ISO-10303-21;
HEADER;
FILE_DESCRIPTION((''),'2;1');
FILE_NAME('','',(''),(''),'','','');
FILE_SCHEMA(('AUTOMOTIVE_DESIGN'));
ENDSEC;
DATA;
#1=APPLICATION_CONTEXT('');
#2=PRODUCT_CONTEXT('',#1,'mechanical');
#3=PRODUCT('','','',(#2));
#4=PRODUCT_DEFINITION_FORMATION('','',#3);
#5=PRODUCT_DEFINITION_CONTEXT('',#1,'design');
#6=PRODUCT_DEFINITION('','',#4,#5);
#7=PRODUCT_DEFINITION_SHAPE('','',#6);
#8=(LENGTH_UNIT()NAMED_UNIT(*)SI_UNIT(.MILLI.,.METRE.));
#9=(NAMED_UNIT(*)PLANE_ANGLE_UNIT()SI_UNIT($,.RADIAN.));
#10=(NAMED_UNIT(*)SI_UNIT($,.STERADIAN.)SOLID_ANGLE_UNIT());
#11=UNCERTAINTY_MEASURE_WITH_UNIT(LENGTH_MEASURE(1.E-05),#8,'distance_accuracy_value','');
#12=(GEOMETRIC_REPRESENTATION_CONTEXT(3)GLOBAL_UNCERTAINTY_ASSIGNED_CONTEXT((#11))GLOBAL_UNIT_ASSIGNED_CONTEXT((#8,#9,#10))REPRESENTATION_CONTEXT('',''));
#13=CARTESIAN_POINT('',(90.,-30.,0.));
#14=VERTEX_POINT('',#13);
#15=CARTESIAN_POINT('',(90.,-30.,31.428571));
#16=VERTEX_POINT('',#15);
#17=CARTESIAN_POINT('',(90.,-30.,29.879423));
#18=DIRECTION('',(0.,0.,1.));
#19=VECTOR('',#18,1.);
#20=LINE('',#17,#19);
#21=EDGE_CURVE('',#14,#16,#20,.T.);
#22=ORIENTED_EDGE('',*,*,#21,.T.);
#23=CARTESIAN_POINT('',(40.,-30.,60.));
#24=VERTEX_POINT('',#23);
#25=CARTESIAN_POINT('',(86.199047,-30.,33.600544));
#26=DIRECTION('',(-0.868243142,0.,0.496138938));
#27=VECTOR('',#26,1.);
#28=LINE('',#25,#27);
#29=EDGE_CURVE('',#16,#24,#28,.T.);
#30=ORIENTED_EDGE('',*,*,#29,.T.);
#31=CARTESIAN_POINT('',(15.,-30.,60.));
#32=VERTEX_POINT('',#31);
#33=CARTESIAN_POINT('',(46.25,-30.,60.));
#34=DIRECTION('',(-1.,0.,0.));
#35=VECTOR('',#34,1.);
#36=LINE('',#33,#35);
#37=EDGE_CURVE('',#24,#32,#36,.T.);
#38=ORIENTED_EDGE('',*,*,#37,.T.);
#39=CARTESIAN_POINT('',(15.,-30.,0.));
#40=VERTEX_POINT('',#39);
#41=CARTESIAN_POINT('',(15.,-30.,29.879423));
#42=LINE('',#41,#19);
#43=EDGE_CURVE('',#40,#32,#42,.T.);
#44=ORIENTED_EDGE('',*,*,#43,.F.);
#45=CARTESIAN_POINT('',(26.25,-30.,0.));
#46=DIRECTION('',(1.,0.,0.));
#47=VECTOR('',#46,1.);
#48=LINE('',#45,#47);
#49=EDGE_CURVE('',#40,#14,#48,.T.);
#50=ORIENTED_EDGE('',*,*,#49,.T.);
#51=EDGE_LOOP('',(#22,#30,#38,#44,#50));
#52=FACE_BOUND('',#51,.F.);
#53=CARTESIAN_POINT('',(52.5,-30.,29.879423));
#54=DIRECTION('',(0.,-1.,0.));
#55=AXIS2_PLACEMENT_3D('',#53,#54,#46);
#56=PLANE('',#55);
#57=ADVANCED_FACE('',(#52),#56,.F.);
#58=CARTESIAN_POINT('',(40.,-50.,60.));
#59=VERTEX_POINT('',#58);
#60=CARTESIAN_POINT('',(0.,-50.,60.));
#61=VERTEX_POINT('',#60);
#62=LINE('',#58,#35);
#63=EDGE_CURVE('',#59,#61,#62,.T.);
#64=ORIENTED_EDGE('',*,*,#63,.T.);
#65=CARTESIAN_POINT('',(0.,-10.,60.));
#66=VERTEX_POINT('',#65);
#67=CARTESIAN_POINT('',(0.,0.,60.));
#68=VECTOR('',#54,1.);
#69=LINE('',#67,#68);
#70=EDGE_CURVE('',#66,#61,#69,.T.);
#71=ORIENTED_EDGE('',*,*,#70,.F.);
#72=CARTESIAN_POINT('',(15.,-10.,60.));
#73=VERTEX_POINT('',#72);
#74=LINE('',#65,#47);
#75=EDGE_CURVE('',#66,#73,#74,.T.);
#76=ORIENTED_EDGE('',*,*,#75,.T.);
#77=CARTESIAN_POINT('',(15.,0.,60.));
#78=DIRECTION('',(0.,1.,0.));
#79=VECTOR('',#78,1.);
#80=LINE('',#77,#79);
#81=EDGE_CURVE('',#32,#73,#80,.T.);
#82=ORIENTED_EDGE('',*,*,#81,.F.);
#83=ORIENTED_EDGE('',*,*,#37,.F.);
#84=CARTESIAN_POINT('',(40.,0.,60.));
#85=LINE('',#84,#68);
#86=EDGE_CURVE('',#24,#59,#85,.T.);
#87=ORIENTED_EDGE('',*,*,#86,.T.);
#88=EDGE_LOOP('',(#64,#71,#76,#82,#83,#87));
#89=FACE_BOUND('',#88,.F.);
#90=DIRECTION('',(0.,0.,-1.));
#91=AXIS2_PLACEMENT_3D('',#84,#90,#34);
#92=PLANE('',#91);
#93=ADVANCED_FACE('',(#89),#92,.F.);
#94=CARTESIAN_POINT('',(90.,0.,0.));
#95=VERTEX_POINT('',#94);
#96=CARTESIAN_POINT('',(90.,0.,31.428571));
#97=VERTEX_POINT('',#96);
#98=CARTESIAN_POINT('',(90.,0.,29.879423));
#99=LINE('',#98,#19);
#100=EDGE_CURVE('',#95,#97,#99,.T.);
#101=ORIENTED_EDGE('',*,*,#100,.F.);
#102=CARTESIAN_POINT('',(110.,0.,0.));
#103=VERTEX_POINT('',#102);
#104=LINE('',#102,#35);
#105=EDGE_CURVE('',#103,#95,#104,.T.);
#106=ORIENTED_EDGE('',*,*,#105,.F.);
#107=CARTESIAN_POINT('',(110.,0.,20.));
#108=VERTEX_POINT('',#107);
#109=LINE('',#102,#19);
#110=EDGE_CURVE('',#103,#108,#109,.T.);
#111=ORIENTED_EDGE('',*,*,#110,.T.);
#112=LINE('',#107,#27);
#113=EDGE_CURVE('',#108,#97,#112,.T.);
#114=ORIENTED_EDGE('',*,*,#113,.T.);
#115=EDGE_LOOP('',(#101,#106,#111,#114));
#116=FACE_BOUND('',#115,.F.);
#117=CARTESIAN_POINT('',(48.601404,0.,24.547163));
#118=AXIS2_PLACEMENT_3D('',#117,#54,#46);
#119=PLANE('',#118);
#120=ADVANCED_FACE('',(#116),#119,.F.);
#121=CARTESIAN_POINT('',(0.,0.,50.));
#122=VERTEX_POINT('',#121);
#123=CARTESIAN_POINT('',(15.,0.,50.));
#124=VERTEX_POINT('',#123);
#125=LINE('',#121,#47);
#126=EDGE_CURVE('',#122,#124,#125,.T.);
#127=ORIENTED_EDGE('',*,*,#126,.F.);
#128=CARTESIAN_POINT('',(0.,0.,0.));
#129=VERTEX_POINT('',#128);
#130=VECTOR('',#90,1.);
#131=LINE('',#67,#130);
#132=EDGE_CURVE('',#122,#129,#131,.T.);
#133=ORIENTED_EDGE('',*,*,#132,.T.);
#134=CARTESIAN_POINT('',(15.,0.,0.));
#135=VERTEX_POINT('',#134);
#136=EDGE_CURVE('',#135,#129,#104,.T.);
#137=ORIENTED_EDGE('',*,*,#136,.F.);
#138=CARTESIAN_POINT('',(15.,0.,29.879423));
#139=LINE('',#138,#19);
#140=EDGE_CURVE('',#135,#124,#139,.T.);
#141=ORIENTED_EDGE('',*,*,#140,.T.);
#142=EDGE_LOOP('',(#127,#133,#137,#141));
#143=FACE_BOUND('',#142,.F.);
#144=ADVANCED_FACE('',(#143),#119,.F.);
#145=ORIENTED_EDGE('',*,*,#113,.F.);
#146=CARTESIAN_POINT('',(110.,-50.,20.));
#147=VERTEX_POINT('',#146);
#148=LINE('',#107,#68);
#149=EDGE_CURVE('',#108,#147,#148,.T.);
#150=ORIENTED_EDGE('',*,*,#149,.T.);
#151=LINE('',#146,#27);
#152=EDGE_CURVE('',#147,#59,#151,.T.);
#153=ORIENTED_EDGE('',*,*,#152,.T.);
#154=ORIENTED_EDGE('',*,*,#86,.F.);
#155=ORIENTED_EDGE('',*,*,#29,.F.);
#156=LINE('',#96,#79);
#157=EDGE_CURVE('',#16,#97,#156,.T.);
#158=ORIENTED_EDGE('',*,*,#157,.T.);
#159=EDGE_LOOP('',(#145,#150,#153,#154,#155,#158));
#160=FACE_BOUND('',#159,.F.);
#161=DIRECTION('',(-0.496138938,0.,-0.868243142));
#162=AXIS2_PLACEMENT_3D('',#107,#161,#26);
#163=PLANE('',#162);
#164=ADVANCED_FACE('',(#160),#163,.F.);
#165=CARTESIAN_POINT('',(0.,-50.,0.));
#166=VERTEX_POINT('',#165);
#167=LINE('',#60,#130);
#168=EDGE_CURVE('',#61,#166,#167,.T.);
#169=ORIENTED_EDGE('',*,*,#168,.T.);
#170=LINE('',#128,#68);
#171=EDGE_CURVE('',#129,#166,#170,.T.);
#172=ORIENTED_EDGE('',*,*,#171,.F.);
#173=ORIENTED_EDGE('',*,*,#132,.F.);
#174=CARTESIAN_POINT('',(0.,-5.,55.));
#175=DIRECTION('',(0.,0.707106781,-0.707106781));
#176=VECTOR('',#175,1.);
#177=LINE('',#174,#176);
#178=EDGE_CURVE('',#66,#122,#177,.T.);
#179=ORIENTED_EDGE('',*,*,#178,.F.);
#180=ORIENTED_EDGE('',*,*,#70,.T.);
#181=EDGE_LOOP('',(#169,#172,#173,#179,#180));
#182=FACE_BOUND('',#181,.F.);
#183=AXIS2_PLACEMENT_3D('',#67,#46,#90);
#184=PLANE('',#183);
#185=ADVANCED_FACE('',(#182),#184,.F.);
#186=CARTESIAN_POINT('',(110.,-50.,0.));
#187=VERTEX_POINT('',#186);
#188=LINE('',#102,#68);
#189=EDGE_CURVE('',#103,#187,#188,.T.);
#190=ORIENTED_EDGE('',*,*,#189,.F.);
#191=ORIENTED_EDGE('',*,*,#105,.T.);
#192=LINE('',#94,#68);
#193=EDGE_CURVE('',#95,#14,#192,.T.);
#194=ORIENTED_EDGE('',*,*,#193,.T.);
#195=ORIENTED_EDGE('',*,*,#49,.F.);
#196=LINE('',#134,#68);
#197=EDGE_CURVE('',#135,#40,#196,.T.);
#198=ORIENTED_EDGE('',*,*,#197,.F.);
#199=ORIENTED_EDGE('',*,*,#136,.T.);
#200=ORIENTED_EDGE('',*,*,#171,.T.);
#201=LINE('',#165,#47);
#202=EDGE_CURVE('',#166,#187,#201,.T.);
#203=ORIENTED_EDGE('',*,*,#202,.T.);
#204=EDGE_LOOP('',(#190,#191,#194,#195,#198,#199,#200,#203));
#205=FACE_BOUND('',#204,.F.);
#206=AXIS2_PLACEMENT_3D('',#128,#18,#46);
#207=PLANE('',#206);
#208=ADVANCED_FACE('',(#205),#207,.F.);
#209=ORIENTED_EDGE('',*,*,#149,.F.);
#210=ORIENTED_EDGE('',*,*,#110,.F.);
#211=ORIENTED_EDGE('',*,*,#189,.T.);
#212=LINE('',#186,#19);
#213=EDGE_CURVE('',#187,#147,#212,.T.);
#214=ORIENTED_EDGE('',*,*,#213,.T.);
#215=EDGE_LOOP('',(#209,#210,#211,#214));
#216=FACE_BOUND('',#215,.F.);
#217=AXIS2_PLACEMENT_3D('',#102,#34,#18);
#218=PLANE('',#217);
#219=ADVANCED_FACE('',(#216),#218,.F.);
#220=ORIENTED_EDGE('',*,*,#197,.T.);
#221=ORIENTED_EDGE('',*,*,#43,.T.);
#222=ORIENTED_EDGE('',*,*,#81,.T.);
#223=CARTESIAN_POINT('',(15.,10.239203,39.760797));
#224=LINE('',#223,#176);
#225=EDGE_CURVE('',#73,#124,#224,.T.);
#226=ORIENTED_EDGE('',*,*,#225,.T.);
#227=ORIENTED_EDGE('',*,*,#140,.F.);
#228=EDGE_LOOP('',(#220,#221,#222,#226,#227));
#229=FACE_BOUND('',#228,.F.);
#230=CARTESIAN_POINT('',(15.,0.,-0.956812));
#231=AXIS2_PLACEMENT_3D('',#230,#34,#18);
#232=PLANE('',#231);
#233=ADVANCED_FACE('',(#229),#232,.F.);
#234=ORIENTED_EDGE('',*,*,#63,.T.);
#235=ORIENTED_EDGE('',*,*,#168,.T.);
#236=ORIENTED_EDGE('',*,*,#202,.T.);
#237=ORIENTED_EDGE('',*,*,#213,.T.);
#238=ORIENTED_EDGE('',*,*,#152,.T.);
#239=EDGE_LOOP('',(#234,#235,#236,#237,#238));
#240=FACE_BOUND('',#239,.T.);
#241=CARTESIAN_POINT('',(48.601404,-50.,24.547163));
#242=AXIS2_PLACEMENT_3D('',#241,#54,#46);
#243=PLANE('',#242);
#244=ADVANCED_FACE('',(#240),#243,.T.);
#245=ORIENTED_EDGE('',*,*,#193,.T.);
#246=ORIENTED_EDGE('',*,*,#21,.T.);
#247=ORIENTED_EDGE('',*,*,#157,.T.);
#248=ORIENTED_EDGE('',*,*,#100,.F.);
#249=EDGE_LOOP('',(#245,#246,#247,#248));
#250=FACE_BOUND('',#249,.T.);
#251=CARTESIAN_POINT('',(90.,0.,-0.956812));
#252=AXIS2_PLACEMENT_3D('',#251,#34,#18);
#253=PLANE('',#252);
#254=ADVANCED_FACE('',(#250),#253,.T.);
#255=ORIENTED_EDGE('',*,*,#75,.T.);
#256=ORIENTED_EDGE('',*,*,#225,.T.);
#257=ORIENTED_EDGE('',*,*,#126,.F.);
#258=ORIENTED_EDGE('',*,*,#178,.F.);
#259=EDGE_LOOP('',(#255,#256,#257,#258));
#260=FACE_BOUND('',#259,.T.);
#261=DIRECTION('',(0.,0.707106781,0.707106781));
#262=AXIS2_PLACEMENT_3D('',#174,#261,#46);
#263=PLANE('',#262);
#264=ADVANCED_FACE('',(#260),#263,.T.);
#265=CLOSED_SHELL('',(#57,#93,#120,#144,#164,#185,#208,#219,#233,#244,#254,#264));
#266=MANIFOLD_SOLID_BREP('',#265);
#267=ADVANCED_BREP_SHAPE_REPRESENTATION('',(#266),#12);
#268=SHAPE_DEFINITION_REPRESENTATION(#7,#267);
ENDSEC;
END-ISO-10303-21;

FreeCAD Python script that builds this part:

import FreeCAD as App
import Part
import Sketcher
Q = App.Units.Quantity


def edges_at(feature, points):
    """Names of the edges that pass closest to the given points."""
    edges = feature.Shape.Edges
    near = lambda p: min(range(len(edges)), key=lambda i: edges[i].distToShape(Part.Vertex(*p))[0])
    return sorted({f"Edge{near(p) + 1}" for p in points})


def add_polygon(sketch, points):
    """Adds a closed chain of lines whose ends are joined by coincident constraints."""
    first, n = sketch.GeometryCount, len(points)
    for a, b in zip(points, points[1:] + points[:1]):
        sketch.addGeometry(Part.LineSegment(App.Vector(*a, 0), App.Vector(*b, 0)), False)
    for i in range(n):
        sketch.addConstraint(Sketcher.Constraint("Coincident", first + i, 2, first + (i + 1) % n, 1))

doc = App.newDocument("Part")
body = doc.addObject("PartDesign::Body", "Body")

sketch1 = body.newObject("Sketcher::SketchObject", "Sketch")
sketch1.AttachmentSupport = (doc.getObject("XZ_Plane"), [""])
sketch1.MapMode = "FlatFace"
add_polygon(sketch1, [(0, 60), (0, 0), (110, 0), (110, 20), (40, 60)])
sketch1.addConstraint(Sketcher.Constraint("Vertical", 0))
sketch1.addConstraint(Sketcher.Constraint("Horizontal", 1))
sketch1.addConstraint(Sketcher.Constraint("Vertical", 2))
sketch1.addConstraint(Sketcher.Constraint("Horizontal", 4))
sketch1.addConstraint(Sketcher.Constraint("Coincident", 0, 2, -1, 1))
sketch1.addConstraint(Sketcher.Constraint("DistanceX", 1, 1, 1, 2, Q("110 mm")))
sketch1.addConstraint(Sketcher.Constraint("DistanceX", 4, 2, 4, 1, Q("40 mm")))
sketch1.addConstraint(Sketcher.Constraint("DistanceY", 0, 2, 0, 1, Q("60 mm")))
sketch1.addConstraint(Sketcher.Constraint("DistanceY", 2, 1, 2, 2, Q("20 mm")))
pad1 = body.newObject("PartDesign::Pad", "Pad")
pad1.Profile = sketch1
pad1.Length = 50

sketch2 = body.newObject("Sketcher::SketchObject", "Sketch001")
sketch2.AttachmentSupport = (doc.getObject("XZ_Plane"), [""])
sketch2.MapMode = "FlatFace"
add_polygon(sketch2, [(15, 60.715657), (15, -0.956812), (90, -0.956812), (90, 60.715657)])
sketch2.addConstraint(Sketcher.Constraint("Vertical", 0))
sketch2.addConstraint(Sketcher.Constraint("Horizontal", 1))
sketch2.addConstraint(Sketcher.Constraint("Vertical", 2))
sketch2.addConstraint(Sketcher.Constraint("Horizontal", 3))
sketch2.addConstraint(Sketcher.Constraint("DistanceX", 1, 1, 1, 2, Q("75 mm")))
sketch2.addConstraint(Sketcher.Constraint("DistanceX", -1, 1, 0, 2, Q("15 mm")))
sketch2.addConstraint(Sketcher.Constraint("DistanceY", 0, 2, 0, 1, Q("61.672469 mm")))
sketch2.addConstraint(Sketcher.Constraint("DistanceY", 0, 2, -1, 1, Q("0.956812 mm")))
pocket1 = body.newObject("PartDesign::Pocket", "Pocket")
pocket1.Profile = sketch2
pocket1.Length = 30

sketch3 = body.newObject("Sketcher::SketchObject", "Sketch002")
sketch3.AttachmentSupport = (doc.getObject("XZ_Plane"), [""])
sketch3.MapMode = "FlatFace"
add_polygon(sketch3, [(15, 60.715657), (15, -0.956812), (90, -0.956812), (90, 60.715657)])
sketch3.addConstraint(Sketcher.Constraint("Vertical", 0))
sketch3.addConstraint(Sketcher.Constraint("Horizontal", 1))
sketch3.addConstraint(Sketcher.Constraint("Vertical", 2))
sketch3.addConstraint(Sketcher.Constraint("Horizontal", 3))
sketch3.addConstraint(Sketcher.Constraint("DistanceX", 1, 1, 1, 2, Q("75 mm")))
sketch3.addConstraint(Sketcher.Constraint("DistanceX", -1, 1, 0, 2, Q("15 mm")))
sketch3.addConstraint(Sketcher.Constraint("DistanceY", 0, 2, 0, 1, Q("61.672469 mm")))
sketch3.addConstraint(Sketcher.Constraint("DistanceY", 0, 2, -1, 1, Q("0.956812 mm")))
pocket2 = body.newObject("PartDesign::Pocket", "Pocket001")
pocket2.Profile = sketch3
pocket2.Length = 30

sketch4 = body.newObject("Sketcher::SketchObject", "Sketch003")
sketch4.AttachmentSupport = (doc.getObject("XZ_Plane"), [""])
sketch4.MapMode = "FlatFace"
add_polygon(sketch4, [(15, 60.715657), (15, -0.956812), (90, -0.956812), (90, 60.715657)])
sketch4.addConstraint(Sketcher.Constraint("Vertical", 0))
sketch4.addConstraint(Sketcher.Constraint("Horizontal", 1))
sketch4.addConstraint(Sketcher.Constraint("Vertical", 2))
sketch4.addConstraint(Sketcher.Constraint("Horizontal", 3))
sketch4.addConstraint(Sketcher.Constraint("DistanceX", 1, 1, 1, 2, Q("75 mm")))
sketch4.addConstraint(Sketcher.Constraint("DistanceX", -1, 1, 0, 2, Q("15 mm")))
sketch4.addConstraint(Sketcher.Constraint("DistanceY", 0, 2, 0, 1, Q("61.672469 mm")))
sketch4.addConstraint(Sketcher.Constraint("DistanceY", 0, 2, -1, 1, Q("0.956812 mm")))
pocket3 = body.newObject("PartDesign::Pocket", "Pocket002")
pocket3.Profile = sketch4
pocket3.Length = 30
pocket3.Reversed = True
doc.recompute()

chamfer = body.newObject("PartDesign::Chamfer", "Chamfer")
chamfer.Base = (pocket3, edges_at(pocket3, [(7.5, 0, 60)]))
chamfer.Size = 10

doc.recompute()
